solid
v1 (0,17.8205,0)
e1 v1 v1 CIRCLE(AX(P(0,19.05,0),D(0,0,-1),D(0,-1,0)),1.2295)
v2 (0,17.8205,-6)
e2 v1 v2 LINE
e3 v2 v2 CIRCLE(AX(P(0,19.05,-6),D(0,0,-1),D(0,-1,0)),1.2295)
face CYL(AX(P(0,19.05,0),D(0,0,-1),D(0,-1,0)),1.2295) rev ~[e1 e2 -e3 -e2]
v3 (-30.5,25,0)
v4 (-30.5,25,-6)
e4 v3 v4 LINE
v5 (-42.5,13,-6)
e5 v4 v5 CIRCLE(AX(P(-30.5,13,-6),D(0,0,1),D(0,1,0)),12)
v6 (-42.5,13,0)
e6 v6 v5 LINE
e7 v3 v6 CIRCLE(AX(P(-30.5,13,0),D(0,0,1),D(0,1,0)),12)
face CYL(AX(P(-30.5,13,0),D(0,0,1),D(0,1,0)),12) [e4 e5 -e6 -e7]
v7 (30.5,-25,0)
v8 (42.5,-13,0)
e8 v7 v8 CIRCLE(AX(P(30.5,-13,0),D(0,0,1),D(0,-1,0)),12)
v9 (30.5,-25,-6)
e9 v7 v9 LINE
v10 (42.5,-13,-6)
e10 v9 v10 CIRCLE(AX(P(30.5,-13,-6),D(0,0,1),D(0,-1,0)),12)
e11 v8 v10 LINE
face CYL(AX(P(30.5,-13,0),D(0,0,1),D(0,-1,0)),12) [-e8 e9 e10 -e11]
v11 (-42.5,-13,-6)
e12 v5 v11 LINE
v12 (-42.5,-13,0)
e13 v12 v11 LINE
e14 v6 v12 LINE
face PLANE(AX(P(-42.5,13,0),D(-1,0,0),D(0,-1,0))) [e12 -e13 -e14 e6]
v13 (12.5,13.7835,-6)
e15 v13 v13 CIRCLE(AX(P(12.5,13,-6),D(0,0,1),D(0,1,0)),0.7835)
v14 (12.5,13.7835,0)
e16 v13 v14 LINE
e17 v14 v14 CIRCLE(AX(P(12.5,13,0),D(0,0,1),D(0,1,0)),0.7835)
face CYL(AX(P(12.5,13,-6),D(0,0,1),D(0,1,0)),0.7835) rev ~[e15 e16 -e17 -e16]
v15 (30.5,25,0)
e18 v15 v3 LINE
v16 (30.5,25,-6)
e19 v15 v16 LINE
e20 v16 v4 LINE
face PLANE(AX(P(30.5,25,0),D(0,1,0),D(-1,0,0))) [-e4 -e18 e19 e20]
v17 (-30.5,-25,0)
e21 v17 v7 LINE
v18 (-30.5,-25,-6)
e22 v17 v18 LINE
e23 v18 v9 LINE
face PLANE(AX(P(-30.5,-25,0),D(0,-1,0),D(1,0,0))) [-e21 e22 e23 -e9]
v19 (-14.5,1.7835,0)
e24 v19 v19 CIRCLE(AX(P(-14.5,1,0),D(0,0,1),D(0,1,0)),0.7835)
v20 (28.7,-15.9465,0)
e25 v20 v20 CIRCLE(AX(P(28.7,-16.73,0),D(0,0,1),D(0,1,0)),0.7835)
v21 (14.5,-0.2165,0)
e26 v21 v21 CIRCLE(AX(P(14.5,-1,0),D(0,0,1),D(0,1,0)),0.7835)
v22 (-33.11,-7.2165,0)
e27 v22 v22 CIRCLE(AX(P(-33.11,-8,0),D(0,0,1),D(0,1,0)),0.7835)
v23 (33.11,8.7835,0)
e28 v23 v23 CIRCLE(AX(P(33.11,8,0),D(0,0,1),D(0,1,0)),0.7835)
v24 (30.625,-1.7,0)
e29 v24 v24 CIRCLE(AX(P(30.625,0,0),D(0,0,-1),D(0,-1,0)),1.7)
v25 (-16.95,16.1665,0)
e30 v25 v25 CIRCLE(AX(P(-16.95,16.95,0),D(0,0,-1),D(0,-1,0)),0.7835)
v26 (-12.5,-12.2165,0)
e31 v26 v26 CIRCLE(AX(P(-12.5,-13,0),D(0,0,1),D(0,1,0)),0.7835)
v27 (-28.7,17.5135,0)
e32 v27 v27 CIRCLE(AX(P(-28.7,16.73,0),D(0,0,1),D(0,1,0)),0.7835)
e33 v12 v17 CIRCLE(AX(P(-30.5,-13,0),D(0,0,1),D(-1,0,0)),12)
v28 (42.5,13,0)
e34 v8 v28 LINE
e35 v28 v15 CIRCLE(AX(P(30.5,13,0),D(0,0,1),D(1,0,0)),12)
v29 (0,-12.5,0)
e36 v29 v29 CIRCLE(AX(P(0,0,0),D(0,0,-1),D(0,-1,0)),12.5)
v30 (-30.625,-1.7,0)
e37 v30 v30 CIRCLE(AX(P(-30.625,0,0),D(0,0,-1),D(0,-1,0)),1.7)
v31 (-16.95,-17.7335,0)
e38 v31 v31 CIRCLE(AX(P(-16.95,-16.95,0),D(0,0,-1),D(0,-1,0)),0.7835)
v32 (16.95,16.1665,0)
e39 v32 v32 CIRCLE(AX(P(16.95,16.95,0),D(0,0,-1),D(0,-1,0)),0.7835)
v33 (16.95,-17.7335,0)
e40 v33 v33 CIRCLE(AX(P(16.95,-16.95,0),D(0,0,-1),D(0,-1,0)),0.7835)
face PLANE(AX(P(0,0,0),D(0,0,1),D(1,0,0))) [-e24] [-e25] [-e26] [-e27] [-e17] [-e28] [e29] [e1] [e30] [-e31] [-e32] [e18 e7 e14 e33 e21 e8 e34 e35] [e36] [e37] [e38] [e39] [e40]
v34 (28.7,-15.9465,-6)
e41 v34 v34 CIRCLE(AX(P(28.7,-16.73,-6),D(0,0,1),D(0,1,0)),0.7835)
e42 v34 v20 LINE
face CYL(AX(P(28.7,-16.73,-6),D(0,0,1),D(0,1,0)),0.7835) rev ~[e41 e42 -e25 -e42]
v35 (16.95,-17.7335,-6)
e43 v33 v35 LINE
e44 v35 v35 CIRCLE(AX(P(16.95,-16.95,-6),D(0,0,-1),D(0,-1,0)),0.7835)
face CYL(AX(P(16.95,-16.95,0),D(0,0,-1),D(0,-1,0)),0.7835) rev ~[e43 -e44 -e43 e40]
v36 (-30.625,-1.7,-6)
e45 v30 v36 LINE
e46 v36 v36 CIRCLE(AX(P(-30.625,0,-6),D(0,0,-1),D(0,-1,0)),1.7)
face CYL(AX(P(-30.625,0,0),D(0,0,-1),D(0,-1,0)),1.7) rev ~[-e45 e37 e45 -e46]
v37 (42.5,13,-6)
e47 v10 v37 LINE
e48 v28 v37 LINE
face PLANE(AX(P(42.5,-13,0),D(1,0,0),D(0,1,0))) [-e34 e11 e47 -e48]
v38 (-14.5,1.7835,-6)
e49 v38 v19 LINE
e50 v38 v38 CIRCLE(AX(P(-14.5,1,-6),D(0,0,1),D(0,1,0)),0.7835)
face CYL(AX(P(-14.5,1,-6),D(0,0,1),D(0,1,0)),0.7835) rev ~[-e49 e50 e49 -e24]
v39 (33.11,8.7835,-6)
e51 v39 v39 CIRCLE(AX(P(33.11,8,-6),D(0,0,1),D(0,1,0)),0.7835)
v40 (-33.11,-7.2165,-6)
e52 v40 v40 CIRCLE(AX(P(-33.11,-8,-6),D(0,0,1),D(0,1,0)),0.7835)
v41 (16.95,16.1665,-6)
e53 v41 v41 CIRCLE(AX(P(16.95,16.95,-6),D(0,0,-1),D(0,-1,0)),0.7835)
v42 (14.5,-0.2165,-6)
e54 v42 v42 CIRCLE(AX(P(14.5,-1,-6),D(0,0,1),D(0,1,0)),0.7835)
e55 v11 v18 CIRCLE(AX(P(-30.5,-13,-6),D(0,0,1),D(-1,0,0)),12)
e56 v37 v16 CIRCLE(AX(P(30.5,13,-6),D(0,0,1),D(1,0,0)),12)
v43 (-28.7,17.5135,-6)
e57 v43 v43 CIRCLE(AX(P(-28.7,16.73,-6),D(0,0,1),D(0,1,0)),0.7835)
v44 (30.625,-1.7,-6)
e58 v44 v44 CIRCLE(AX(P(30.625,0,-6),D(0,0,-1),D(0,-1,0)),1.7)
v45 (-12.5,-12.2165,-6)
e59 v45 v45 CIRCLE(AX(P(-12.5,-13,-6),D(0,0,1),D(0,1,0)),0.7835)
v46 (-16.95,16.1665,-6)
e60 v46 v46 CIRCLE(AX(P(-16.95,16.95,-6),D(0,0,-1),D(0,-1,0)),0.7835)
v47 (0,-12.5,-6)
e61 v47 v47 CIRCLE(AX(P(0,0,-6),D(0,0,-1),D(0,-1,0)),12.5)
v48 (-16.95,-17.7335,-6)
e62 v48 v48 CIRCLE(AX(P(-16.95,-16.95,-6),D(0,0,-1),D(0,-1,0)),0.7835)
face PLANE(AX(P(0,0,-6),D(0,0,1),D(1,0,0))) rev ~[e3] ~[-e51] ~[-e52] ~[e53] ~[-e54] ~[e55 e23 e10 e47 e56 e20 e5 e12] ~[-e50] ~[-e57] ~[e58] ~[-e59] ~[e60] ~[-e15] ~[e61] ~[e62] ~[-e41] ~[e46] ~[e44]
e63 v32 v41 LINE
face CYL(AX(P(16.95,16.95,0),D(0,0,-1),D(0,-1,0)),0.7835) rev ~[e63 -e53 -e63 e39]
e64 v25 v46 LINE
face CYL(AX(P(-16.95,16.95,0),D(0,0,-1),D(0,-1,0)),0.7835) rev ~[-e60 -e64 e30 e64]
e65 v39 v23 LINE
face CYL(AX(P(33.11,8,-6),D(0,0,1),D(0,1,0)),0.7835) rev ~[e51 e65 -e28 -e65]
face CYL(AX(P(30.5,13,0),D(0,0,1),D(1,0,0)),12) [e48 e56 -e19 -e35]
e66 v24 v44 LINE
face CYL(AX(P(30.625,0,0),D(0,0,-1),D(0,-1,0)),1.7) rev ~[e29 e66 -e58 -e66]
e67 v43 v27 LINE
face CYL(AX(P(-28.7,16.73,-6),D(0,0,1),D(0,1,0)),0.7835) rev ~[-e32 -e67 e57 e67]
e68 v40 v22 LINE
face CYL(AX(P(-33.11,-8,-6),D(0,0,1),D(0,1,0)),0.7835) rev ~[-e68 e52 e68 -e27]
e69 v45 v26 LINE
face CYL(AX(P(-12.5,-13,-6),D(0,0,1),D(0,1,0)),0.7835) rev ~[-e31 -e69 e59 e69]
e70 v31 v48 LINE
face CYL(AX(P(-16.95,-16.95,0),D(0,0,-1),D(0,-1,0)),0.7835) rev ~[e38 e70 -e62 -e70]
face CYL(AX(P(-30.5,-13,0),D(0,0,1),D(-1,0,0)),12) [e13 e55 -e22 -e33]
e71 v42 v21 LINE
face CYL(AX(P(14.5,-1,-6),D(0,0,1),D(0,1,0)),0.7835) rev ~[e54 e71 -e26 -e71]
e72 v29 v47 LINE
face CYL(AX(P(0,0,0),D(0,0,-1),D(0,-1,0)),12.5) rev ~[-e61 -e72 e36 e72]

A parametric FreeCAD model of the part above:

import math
import FreeCAD as App
import Part
import Sketcher
from FreeCAD import Vector

doc = App.newDocument("Part")
body = doc.addObject("PartDesign::Body", "Body")

# Sketch on XY plane
sketch1 = body.newObject("Sketcher::SketchObject", "Sketch")
sketch1.AttachmentSupport = (doc.getObject("XY_Plane"), [""])
sketch1.MapMode = "FlatFace"
sketch1.addGeometry(Part.ArcOfCircle(Part.Circle(Vector(-30, -13, 0), Vector(0, 0, 1), 12), math.radians(180), math.radians(270)), False)
sketch1.addGeometry(Part.LineSegment(Vector(-30, -25, 0), Vector(30, -25, 0)), False)
sketch1.addGeometry(Part.ArcOfCircle(Part.Circle(Vector(30, -13, 0), Vector(0, 0, 1), 12), math.radians(-90), math.radians(0)), False)
sketch1.addGeometry(Part.LineSegment(Vector(42, -13, 0), Vector(42, 13, 0)), False)
sketch1.addGeometry(Part.ArcOfCircle(Part.Circle(Vector(30, 13, 0), Vector(0, 0, 1), 12), math.radians(0), math.radians(90)), False)
sketch1.addGeometry(Part.LineSegment(Vector(30, 25, 0), Vector(-30, 25, 0)), False)
sketch1.addGeometry(Part.ArcOfCircle(Part.Circle(Vector(-30, 13, 0), Vector(0, 0, 1), 12), math.radians(90), math.radians(180)), False)
sketch1.addGeometry(Part.LineSegment(Vector(-42, 13, 0), Vector(-42, -13, 0)), False)
sketch1.addConstraint(Sketcher.Constraint("Tangent", 0, 2, 1, 1))
sketch1.addConstraint(Sketcher.Constraint("Tangent", 1, 2, 2, 1))
sketch1.addConstraint(Sketcher.Constraint("Tangent", 2, 2, 3, 1))
sketch1.addConstraint(Sketcher.Constraint("Tangent", 3, 2, 4, 1))
sketch1.addConstraint(Sketcher.Constraint("Tangent", 4, 2, 5, 1))
sketch1.addConstraint(Sketcher.Constraint("Tangent", 5, 2, 6, 1))
sketch1.addConstraint(Sketcher.Constraint("Tangent", 6, 2, 7, 1))
sketch1.addConstraint(Sketcher.Constraint("Tangent", 7, 2, 0, 1))
sketch1.addConstraint(Sketcher.Constraint("Horizontal", 1))
sketch1.addConstraint(Sketcher.Constraint("Vertical", 3))
sketch1.addConstraint(Sketcher.Constraint("Horizontal", 5))
sketch1.addConstraint(Sketcher.Constraint("Vertical", 7))
sketch1.addConstraint(Sketcher.Constraint("Equal", 0, 2))
sketch1.addConstraint(Sketcher.Constraint("Equal", 2, 4))
sketch1.addConstraint(Sketcher.Constraint("Equal", 4, 6))
sketch1.addConstraint(Sketcher.Constraint("Symmetric", 0, 3, 4, 3, -1, 1))
sketch1.addConstraint(Sketcher.Constraint("Radius", 0, 12.0))
sketch1.addConstraint(Sketcher.Constraint("DistanceY", 0, 2, -1, 1, 25.0))
sketch1.addConstraint(Sketcher.Constraint("DistanceX", 1, 1, 1, 2, 61.0))
pad1 = body.newObject("PartDesign::Pad", "Pad")
pad1.Profile = sketch1
pad1.Length = 6
pad1.Reversed = True

# Sketch on XY plane
sketch2 = body.newObject("Sketcher::SketchObject", "Sketch001")
sketch2.AttachmentSupport = (doc.getObject("XY_Plane"), [""])
sketch2.MapMode = "FlatFace"
sketch2.addGeometry(Part.Circle(Vector(-30.6, 0, 0), Vector(0, 0, 1), 1.7), False)
sketch2.addGeometry(Part.Circle(Vector(30.6, 0, 0), Vector(0, 0, 1), 1.7), False)
sketch2.addConstraint(Sketcher.Constraint("Equal", 0, 1))
sketch2.addConstraint(Sketcher.Constraint("Symmetric", 0, 3, 1, 3, -1, 1))
sketch2.addConstraint(Sketcher.Constraint("PointOnObject", 0, 3, -1))
sketch2.addConstraint(Sketcher.Constraint("Diameter", 0, 3.4))
sketch2.addConstraint(Sketcher.Constraint("DistanceX", 0, 3, 1, 3, 61.25))
doc.recompute()
hole = body.newObject("PartDesign::Hole", "Hole")
hole.Profile = sketch2
hole.ThreadType = "None"
hole.Diameter = 3.4
hole.DepthType = "ThroughAll"

# Sketch on XY plane
sketch3 = body.newObject("Sketcher::SketchObject", "Sketch002")
sketch3.AttachmentSupport = (doc.getObject("XY_Plane"), [""])
sketch3.MapMode = "FlatFace"
sketch3.addGeometry(Part.Circle(Vector(0, 19.1, 0), Vector(0, 0, 1), 1.2), False)
sketch3.addConstraint(Sketcher.Constraint("PointOnObject", 0, 3, -2))
sketch3.addConstraint(Sketcher.Constraint("Diameter", 0, 2.459))
sketch3.addConstraint(Sketcher.Constraint("DistanceY", -1, 1, 0, 3, 19.05))
doc.recompute()
hole2 = body.newObject("PartDesign::Hole", "Hole001")
hole2.Profile = sketch3
hole2.ThreadType = "None"
hole2.Diameter = 2.459
hole2.DepthType = "ThroughAll"

# Sketch on XY plane
sketch4 = body.newObject("Sketcher::SketchObject", "Sketch003")
sketch4.AttachmentSupport = (doc.getObject("XY_Plane"), [""])
sketch4.MapMode = "FlatFace"
sketch4.addGeometry(Part.Circle(Vector(-16.9, 16.9, 0), Vector(0, 0, 1), 0.8), False)
sketch4.addGeometry(Part.Circle(Vector(16.9, 16.9, 0), Vector(0, 0, 1), 0.8), False)
sketch4.addGeometry(Part.Circle(Vector(16.9, -16.9, 0), Vector(0, 0, 1), 0.8), False)
sketch4.addGeometry(Part.Circle(Vector(-16.9, -16.9, 0), Vector(0, 0, 1), 0.8), False)
sketch4.addConstraint(Sketcher.Constraint("Equal", 0, 1))
sketch4.addConstraint(Sketcher.Constraint("Equal", 1, 2))
sketch4.addConstraint(Sketcher.Constraint("Equal", 2, 3))
sketch4.addConstraint(Sketcher.Constraint("Symmetric", 0, 3, 2, 3, -1, 1))
sketch4.addConstraint(Sketcher.Constraint("Symmetric", 1, 3, 3, 3, -1, 1))
sketch4.addConstraint(Sketcher.Constraint("Symmetric", 0, 3, 1, 3, -2))
sketch4.addConstraint(Sketcher.Constraint("Diameter", 0, 1.567))
sketch4.addConstraint(Sketcher.Constraint("DistanceX", 0, 3, 1, 3, 33.9))
sketch4.addConstraint(Sketcher.Constraint("DistanceY", 2, 3, 1, 3, 33.9))
doc.recompute()
hole3 = body.newObject("PartDesign::Hole", "Hole002")
hole3.Profile = sketch4
hole3.ThreadType = "None"
hole3.Diameter = 1.567
hole3.DepthType = "ThroughAll"

# Sketch on XY plane
sketch5 = body.newObject("Sketcher::SketchObject", "Sketch004")
sketch5.AttachmentSupport = (doc.getObject("XY_Plane"), [""])
sketch5.MapMode = "FlatFace"
sketch5.addGeometry(Part.Circle(Vector(0, 0, 0), Vector(0, 0, 1), 12), False)
sketch5.addConstraint(Sketcher.Constraint("Coincident", 0, 3, -1, 1))
sketch5.addConstraint(Sketcher.Constraint("Diameter", 0, 25.0))
doc.recompute()
hole4 = body.newObject("PartDesign::Hole", "Hole003")
hole4.Profile = sketch5
hole4.ThreadType = "None"
hole4.Diameter = 25
hole4.DepthType = "ThroughAll"

# Sketch on XY plane
sketch6 = body.newObject("Sketcher::SketchObject", "Sketch005")
sketch6.AttachmentSupport = (doc.getObject("XY_Plane"), [""])
sketch6.MapMode = "FlatFace"
sketch6.AttachmentOffset = App.Placement(Vector(0, 0, -6), App.Rotation())
sketch6.addGeometry(Part.Circle(Vector(33.1, 8, 0), Vector(0, 0, 1), 0.8), False)
sketch6.addGeometry(Part.Circle(Vector(12.5, 13, 0), Vector(0, 0, 1), 0.8), False)
sketch6.addGeometry(Part.Circle(Vector(-28.7, 16.7, 0), Vector(0, 0, 1), 0.8), False)
sketch6.addGeometry(Part.Circle(Vector(-14.5, 1, 0), Vector(0, 0, 1), 0.8), False)
sketch6.addGeometry(Part.Circle(Vector(-33.1, -8, 0), Vector(0, 0, 1), 0.8), False)
sketch6.addGeometry(Part.Circle(Vector(-12.5, -13, 0), Vector(0, 0, 1), 0.8), False)
sketch6.addGeometry(Part.Circle(Vector(14.5, -1, 0), Vector(0, 0, 1), 0.8), False)
sketch6.addGeometry(Part.Circle(Vector(28.7, -16.7, 0), Vector(0, 0, 1), 0.8), False)
sketch6.addConstraint(Sketcher.Constraint("Equal", 0, 1))
sketch6.addConstraint(Sketcher.Constraint("Equal", 1, 2))
sketch6.addConstraint(Sketcher.Constraint("Equal", 2, 3))
sketch6.addConstraint(Sketcher.Constraint("Equal", 3, 4))
sketch6.addConstraint(Sketcher.Constraint("Equal", 4, 5))
sketch6.addConstraint(Sketcher.Constraint("Equal", 5, 6))
sketch6.addConstraint(Sketcher.Constraint("Equal", 6, 7))
sketch6.addConstraint(Sketcher.Constraint("Symmetric", 0, 3, 4, 3, -1, 1))
sketch6.addConstraint(Sketcher.Constraint("Symmetric", 1, 3, 5, 3, -1, 1))
sketch6.addConstraint(Sketcher.Constraint("Symmetric", 3, 3, 6, 3, -1, 1))
sketch6.addConstraint(Sketcher.Constraint("Symmetric", 2, 3, 7, 3, -1, 1))
sketch6.addConstraint(Sketcher.Constraint("Diameter", 0, 1.567))
sketch6.addConstraint(Sketcher.Constraint("DistanceY", -1, 1, 0, 3, 8.0))
sketch6.addConstraint(Sketcher.Constraint("DistanceY", -1, 1, 1, 3, 13.0))
sketch6.addConstraint(Sketcher.Constraint("DistanceY", -1, 1, 3, 3, 1.0))
sketch6.addConstraint(Sketcher.Constraint("DistanceX", 3, 3, 1, 3, 27.0))
sketch6.addConstraint(Sketcher.Constraint("DistanceX", 3, 3, 5, 3, 2.0))
sketch6.addConstraint(Sketcher.Constraint("DistanceX", 2, 3, -1, 1, 28.7))
sketch6.addConstraint(Sketcher.Constraint("DistanceX", -1, 1, 0, 3, 33.11))
sketch6.addConstraint(Sketcher.Constraint("DistanceY", -1, 1, 2, 3, 16.73))
doc.recompute()
hole5 = body.newObject("PartDesign::Hole", "Hole004")
hole5.Profile = sketch6
hole5.ThreadType = "None"
hole5.Diameter = 1.567
hole5.DepthType = "ThroughAll"
hole5.Reversed = True

doc.recompute()
